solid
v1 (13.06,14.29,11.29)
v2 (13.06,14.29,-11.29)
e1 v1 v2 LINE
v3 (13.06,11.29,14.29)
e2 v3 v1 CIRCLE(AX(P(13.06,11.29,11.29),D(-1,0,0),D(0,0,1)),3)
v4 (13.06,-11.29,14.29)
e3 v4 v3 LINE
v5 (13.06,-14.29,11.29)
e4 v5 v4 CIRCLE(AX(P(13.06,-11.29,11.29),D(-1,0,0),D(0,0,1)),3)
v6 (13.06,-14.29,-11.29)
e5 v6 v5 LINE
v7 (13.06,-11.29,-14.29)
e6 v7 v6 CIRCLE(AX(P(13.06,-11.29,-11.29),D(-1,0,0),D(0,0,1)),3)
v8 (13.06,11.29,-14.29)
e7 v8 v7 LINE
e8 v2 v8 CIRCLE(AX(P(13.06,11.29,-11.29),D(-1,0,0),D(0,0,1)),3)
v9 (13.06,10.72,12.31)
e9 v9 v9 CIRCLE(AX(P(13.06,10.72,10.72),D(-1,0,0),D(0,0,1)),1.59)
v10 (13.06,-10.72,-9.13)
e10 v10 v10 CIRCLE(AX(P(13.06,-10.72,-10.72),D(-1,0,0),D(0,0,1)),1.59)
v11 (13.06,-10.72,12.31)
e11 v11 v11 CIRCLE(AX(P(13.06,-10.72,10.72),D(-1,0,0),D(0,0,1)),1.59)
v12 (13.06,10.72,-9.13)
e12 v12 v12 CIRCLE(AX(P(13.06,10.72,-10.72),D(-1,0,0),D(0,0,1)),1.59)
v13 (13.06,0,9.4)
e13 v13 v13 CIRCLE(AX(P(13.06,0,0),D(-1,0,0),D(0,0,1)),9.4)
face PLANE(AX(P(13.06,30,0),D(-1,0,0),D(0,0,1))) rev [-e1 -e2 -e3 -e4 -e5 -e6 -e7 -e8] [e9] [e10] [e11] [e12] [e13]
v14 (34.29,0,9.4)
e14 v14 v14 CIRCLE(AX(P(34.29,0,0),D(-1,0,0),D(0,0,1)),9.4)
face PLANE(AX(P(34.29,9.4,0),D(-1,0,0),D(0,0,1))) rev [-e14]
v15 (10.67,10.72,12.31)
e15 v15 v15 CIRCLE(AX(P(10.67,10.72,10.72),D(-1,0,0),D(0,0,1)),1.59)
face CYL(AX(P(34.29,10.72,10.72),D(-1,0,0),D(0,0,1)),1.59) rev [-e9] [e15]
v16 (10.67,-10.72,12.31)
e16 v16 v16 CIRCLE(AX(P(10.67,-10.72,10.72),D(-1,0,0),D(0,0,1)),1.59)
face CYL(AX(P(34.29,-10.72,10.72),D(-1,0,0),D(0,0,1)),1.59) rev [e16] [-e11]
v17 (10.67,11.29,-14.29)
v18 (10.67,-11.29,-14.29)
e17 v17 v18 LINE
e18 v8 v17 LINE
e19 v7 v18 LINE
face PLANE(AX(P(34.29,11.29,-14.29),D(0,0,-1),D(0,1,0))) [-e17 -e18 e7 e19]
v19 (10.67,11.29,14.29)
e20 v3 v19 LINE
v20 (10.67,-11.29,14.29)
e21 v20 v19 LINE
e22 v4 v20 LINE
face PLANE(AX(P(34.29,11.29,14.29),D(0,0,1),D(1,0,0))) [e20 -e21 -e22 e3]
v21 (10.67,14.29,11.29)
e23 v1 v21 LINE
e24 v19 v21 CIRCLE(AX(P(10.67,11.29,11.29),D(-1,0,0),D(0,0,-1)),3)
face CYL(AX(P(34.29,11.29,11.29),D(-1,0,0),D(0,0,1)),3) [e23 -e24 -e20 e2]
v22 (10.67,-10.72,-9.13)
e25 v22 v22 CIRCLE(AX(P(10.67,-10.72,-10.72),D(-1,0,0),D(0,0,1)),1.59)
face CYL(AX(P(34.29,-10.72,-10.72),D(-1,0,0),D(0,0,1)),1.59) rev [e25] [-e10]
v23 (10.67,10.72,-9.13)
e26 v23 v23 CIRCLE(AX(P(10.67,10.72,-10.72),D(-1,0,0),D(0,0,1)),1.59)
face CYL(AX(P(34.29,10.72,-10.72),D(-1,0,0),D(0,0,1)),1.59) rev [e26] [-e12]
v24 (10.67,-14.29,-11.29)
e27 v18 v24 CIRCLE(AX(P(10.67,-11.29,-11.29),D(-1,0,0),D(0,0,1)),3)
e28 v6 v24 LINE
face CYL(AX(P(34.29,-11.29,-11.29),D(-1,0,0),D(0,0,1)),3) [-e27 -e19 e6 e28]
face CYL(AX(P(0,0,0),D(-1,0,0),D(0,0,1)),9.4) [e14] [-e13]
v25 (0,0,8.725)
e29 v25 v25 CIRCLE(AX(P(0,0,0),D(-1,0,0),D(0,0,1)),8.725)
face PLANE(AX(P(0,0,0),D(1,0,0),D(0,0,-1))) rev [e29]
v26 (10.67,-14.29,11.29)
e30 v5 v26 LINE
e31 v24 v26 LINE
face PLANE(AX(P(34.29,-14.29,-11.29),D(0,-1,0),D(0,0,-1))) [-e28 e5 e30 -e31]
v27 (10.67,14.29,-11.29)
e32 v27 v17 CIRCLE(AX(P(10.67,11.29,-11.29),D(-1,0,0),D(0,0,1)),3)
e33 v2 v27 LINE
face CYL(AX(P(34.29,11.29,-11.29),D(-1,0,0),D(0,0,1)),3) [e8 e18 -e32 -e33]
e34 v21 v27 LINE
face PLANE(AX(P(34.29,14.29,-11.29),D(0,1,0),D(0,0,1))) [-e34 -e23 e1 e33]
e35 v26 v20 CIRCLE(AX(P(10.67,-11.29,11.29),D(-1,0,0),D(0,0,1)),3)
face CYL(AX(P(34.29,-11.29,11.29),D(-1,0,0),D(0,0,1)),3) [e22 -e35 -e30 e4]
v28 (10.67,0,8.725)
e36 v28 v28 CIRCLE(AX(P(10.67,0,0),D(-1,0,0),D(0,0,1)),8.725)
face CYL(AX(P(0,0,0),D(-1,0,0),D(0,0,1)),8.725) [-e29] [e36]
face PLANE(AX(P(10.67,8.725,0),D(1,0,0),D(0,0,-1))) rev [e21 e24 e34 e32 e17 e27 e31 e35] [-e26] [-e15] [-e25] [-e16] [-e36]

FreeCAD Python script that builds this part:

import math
import FreeCAD as App
import Part
import Sketcher
from FreeCAD import Vector

doc = App.newDocument("Part")
body = doc.addObject("PartDesign::Body", "Body")

# Sketch on XY plane
sketch1 = body.newObject("Sketcher::SketchObject", "Sketch")
sketch1.AttachmentSupport = (doc.getObject("XY_Plane"), [""])
sketch1.MapMode = "FlatFace"
sketch1.addGeometry(Part.LineSegment(Vector(0, 8.7, 0), Vector(0, 0, 0)), False)
sketch1.addGeometry(Part.LineSegment(Vector(0, 0, 0), Vector(34.3, 0, 0)), False)
sketch1.addGeometry(Part.LineSegment(Vector(34.3, 0, 0), Vector(34.3, 9.4, 0)), False)
sketch1.addGeometry(Part.LineSegment(Vector(34.3, 9.4, 0), Vector(13.1, 9.4, 0)), False)
sketch1.addGeometry(Part.LineSegment(Vector(13.1, 9.4, 0), Vector(13.1, 30, 0)), False)
sketch1.addGeometry(Part.LineSegment(Vector(13.1, 30, 0), Vector(10.7, 30, 0)), False)
sketch1.addGeometry(Part.LineSegment(Vector(10.7, 30, 0), Vector(10.7, 8.7, 0)), False)
sketch1.addGeometry(Part.LineSegment(Vector(10.7, 8.7, 0), Vector(0, 8.7, 0)), False)
sketch1.addConstraint(Sketcher.Constraint("Coincident", 0, 2, 1, 1))
sketch1.addConstraint(Sketcher.Constraint("Coincident", 1, 2, 2, 1))
sketch1.addConstraint(Sketcher.Constraint("Coincident", 2, 2, 3, 1))
sketch1.addConstraint(Sketcher.Constraint("Coincident", 3, 2, 4, 1))
sketch1.addConstraint(Sketcher.Constraint("Coincident", 4, 2, 5, 1))
sketch1.addConstraint(Sketcher.Constraint("Coincident", 5, 2, 6, 1))
sketch1.addConstraint(Sketcher.Constraint("Coincident", 6, 2, 7, 1))
sketch1.addConstraint(Sketcher.Constraint("Coincident", 7, 2, 0, 1))
sketch1.addConstraint(Sketcher.Constraint("Vertical", 0))
sketch1.addConstraint(Sketcher.Constraint("Horizontal", 1))
sketch1.addConstraint(Sketcher.Constraint("Vertical", 2))
sketch1.addConstraint(Sketcher.Constraint("Horizontal", 3))
sketch1.addConstraint(Sketcher.Constraint("Vertical", 4))
sketch1.addConstraint(Sketcher.Constraint("Horizontal", 5))
sketch1.addConstraint(Sketcher.Constraint("Vertical", 6))
sketch1.addConstraint(Sketcher.Constraint("Horizontal", 7))
sketch1.addConstraint(Sketcher.Constraint("Coincident", 0, 2, -1, 1))
sketch1.addConstraint(Sketcher.Constraint("DistanceY", 2, 1, 2, 2, 9.4))
sketch1.addConstraint(Sketcher.Constraint("DistanceY", 4, 1, 4, 2, 20.6))
sketch1.addConstraint(Sketcher.Constraint("DistanceX", 1, 1, 1, 2, 34.29))
sketch1.addConstraint(Sketcher.Constraint("DistanceX", 3, 2, 3, 1, 21.23))
sketch1.addConstraint(Sketcher.Constraint("DistanceX", 5, 2, 5, 1, 2.39))
sketch1.addConstraint(Sketcher.Constraint("DistanceY", 0, 2, 0, 1, 8.725))
revolution = body.newObject("PartDesign::Revolution", "Revolution")
revolution.Profile = sketch1
revolution.ReferenceAxis = (sketch1, ["H_Axis"])
revolution.Angle = 360

# Sketch on YZ plane
sketch2 = body.newObject("Sketcher::SketchObject", "Sketch001")
sketch2.AttachmentSupport = (doc.getObject("YZ_Plane"), [""])
sketch2.MapMode = "FlatFace"
sketch2.AttachmentOffset = App.Placement(Vector(0, 0, 10.67), App.Rotation())
sketch2.addGeometry(Part.LineSegment(Vector(40.2, -40.2, 0), Vector(-40.2, -40.2, 0)), False)
sketch2.addGeometry(Part.LineSegment(Vector(-40.2, -40.2, 0), Vector(-40.2, 40.2, 0)), False)
sketch2.addGeometry(Part.LineSegment(Vector(-40.2, 40.2, 0), Vector(40.2, 40.2, 0)), False)
sketch2.addGeometry(Part.LineSegment(Vector(40.2, 40.2, 0), Vector(40.2, -40.2, 0)), False)
sketch2.addGeometry(Part.ArcOfCircle(Part.Circle(Vector(11.3, -11.3, 0), Vector(0, 0, 1), 3), math.radians(-90), math.radians(0)), False)
sketch2.addGeometry(Part.LineSegment(Vector(14.3, -11.3, 0), Vector(14.3, 11.3, 0)), False)
sketch2.addGeometry(Part.ArcOfCircle(Part.Circle(Vector(11.3, 11.3, 0), Vector(0, 0, 1), 3), math.radians(0), math.radians(90)), False)
sketch2.addGeometry(Part.LineSegment(Vector(11.3, 14.3, 0), Vector(-11.3, 14.3, 0)), False)
sketch2.addGeometry(Part.ArcOfCircle(Part.Circle(Vector(-11.3, 11.3, 0), Vector(0, 0, 1), 3), math.radians(90), math.radians(180)), False)
sketch2.addGeometry(Part.LineSegment(Vector(-14.3, 11.3, 0), Vector(-14.3, -11.3, 0)), False)
sketch2.addGeometry(Part.ArcOfCircle(Part.Circle(Vector(-11.3, -11.3, 0), Vector(0, 0, 1), 3), math.radians(180), math.radians(270)), False)
sketch2.addGeometry(Part.LineSegment(Vector(-11.3, -14.3, 0), Vector(11.3, -14.3, 0)), False)
sketch2.addGeometry(Part.Circle(Vector(10.7, 10.7, 0), Vector(0, 0, 1), 1.6), False)
sketch2.addGeometry(Part.Circle(Vector(10.7, -10.7, 0), Vector(0, 0, 1), 1.6), False)
sketch2.addGeometry(Part.Circle(Vector(-10.7, -10.7, 0), Vector(0, 0, 1), 1.6), False)
sketch2.addGeometry(Part.Circle(Vector(-10.7, 10.7, 0), Vector(0, 0, 1), 1.6), False)
sketch2.addConstraint(Sketcher.Constraint("Coincident", 0, 2, 1, 1))
sketch2.addConstraint(Sketcher.Constraint("Coincident", 1, 2, 2, 1))
sketch2.addConstraint(Sketcher.Constraint("Coincident", 2, 2, 3, 1))
sketch2.addConstraint(Sketcher.Constraint("Coincident", 3, 2, 0, 1))
sketch2.addConstraint(Sketcher.Constraint("Tangent", 4, 2, 5, 1))
sketch2.addConstraint(Sketcher.Constraint("Tangent", 5, 2, 6, 1))
sketch2.addConstraint(Sketcher.Constraint("Tangent", 6, 2, 7, 1))
sketch2.addConstraint(Sketcher.Constraint("Tangent", 7, 2, 8, 1))
sketch2.addConstraint(Sketcher.Constraint("Tangent", 8, 2, 9, 1))
sketch2.addConstraint(Sketcher.Constraint("Tangent", 9, 2, 10, 1))
sketch2.addConstraint(Sketcher.Constraint("Tangent", 10, 2, 11, 1))
sketch2.addConstraint(Sketcher.Constraint("Tangent", 11, 2, 4, 1))
sketch2.addConstraint(Sketcher.Constraint("Horizontal", 0))
sketch2.addConstraint(Sketcher.Constraint("Vertical", 1))
sketch2.addConstraint(Sketcher.Constraint("Horizontal", 2))
sketch2.addConstraint(Sketcher.Constraint("Vertical", 3))
sketch2.addConstraint(Sketcher.Constraint("Vertical", 5))
sketch2.addConstraint(Sketcher.Constraint("Horizontal", 7))
sketch2.addConstraint(Sketcher.Constraint("Vertical", 9))
sketch2.addConstraint(Sketcher.Constraint("Horizontal", 11))
sketch2.addConstraint(Sketcher.Constraint("Equal", 4, 6))
sketch2.addConstraint(Sketcher.Constraint("Equal", 6, 8))
sketch2.addConstraint(Sketcher.Constraint("Equal", 8, 10))
sketch2.addConstraint(Sketcher.Constraint("Equal", 12, 13))
sketch2.addConstraint(Sketcher.Constraint("Equal", 13, 14))
sketch2.addConstraint(Sketcher.Constraint("Equal", 14, 15))
sketch2.addConstraint(Sketcher.Constraint("Symmetric", 4, 3, 8, 3, -1, 1))
sketch2.addConstraint(Sketcher.Constraint("Symmetric", 12, 3, 14, 3, -1, 1))
sketch2.addConstraint(Sketcher.Constraint("Symmetric", 13, 3, 15, 3, -1, 1))
sketch2.addConstraint(Sketcher.Constraint("Symmetric", 0, 2, 2, 2, -1, 1))
sketch2.addConstraint(Sketcher.Constraint("Symmetric", 13, 3, 14, 3, -2))
sketch2.addConstraint(Sketcher.Constraint("Equal", 2, 1))
sketch2.addConstraint(Sketcher.Constraint("Equal", 11, 5))
sketch2.addConstraint(Sketcher.Constraint("Radius", 4, 3.0))
sketch2.addConstraint(Sketcher.Constraint("Diameter", 12, 3.18))
sketch2.addConstraint(Sketcher.Constraint("DistanceX", 7, 2, 7, 1, 22.58))
sketch2.addConstraint(Sketcher.Constraint("DistanceX", 0, 2, 0, 1, 80.304))
sketch2.addConstraint(Sketcher.Constraint("DistanceX", -1, 1, 12, 3, 10.72))
sketch2.addConstraint(Sketcher.Constraint("DistanceY", -1, 1, 12, 3, 10.72))
pocket1 = body.newObject("PartDesign::Pocket", "Pocket")
pocket1.Profile = sketch2
pocket1.Type = "ThroughAll"
pocket1.Reversed = True

doc.recompute()
